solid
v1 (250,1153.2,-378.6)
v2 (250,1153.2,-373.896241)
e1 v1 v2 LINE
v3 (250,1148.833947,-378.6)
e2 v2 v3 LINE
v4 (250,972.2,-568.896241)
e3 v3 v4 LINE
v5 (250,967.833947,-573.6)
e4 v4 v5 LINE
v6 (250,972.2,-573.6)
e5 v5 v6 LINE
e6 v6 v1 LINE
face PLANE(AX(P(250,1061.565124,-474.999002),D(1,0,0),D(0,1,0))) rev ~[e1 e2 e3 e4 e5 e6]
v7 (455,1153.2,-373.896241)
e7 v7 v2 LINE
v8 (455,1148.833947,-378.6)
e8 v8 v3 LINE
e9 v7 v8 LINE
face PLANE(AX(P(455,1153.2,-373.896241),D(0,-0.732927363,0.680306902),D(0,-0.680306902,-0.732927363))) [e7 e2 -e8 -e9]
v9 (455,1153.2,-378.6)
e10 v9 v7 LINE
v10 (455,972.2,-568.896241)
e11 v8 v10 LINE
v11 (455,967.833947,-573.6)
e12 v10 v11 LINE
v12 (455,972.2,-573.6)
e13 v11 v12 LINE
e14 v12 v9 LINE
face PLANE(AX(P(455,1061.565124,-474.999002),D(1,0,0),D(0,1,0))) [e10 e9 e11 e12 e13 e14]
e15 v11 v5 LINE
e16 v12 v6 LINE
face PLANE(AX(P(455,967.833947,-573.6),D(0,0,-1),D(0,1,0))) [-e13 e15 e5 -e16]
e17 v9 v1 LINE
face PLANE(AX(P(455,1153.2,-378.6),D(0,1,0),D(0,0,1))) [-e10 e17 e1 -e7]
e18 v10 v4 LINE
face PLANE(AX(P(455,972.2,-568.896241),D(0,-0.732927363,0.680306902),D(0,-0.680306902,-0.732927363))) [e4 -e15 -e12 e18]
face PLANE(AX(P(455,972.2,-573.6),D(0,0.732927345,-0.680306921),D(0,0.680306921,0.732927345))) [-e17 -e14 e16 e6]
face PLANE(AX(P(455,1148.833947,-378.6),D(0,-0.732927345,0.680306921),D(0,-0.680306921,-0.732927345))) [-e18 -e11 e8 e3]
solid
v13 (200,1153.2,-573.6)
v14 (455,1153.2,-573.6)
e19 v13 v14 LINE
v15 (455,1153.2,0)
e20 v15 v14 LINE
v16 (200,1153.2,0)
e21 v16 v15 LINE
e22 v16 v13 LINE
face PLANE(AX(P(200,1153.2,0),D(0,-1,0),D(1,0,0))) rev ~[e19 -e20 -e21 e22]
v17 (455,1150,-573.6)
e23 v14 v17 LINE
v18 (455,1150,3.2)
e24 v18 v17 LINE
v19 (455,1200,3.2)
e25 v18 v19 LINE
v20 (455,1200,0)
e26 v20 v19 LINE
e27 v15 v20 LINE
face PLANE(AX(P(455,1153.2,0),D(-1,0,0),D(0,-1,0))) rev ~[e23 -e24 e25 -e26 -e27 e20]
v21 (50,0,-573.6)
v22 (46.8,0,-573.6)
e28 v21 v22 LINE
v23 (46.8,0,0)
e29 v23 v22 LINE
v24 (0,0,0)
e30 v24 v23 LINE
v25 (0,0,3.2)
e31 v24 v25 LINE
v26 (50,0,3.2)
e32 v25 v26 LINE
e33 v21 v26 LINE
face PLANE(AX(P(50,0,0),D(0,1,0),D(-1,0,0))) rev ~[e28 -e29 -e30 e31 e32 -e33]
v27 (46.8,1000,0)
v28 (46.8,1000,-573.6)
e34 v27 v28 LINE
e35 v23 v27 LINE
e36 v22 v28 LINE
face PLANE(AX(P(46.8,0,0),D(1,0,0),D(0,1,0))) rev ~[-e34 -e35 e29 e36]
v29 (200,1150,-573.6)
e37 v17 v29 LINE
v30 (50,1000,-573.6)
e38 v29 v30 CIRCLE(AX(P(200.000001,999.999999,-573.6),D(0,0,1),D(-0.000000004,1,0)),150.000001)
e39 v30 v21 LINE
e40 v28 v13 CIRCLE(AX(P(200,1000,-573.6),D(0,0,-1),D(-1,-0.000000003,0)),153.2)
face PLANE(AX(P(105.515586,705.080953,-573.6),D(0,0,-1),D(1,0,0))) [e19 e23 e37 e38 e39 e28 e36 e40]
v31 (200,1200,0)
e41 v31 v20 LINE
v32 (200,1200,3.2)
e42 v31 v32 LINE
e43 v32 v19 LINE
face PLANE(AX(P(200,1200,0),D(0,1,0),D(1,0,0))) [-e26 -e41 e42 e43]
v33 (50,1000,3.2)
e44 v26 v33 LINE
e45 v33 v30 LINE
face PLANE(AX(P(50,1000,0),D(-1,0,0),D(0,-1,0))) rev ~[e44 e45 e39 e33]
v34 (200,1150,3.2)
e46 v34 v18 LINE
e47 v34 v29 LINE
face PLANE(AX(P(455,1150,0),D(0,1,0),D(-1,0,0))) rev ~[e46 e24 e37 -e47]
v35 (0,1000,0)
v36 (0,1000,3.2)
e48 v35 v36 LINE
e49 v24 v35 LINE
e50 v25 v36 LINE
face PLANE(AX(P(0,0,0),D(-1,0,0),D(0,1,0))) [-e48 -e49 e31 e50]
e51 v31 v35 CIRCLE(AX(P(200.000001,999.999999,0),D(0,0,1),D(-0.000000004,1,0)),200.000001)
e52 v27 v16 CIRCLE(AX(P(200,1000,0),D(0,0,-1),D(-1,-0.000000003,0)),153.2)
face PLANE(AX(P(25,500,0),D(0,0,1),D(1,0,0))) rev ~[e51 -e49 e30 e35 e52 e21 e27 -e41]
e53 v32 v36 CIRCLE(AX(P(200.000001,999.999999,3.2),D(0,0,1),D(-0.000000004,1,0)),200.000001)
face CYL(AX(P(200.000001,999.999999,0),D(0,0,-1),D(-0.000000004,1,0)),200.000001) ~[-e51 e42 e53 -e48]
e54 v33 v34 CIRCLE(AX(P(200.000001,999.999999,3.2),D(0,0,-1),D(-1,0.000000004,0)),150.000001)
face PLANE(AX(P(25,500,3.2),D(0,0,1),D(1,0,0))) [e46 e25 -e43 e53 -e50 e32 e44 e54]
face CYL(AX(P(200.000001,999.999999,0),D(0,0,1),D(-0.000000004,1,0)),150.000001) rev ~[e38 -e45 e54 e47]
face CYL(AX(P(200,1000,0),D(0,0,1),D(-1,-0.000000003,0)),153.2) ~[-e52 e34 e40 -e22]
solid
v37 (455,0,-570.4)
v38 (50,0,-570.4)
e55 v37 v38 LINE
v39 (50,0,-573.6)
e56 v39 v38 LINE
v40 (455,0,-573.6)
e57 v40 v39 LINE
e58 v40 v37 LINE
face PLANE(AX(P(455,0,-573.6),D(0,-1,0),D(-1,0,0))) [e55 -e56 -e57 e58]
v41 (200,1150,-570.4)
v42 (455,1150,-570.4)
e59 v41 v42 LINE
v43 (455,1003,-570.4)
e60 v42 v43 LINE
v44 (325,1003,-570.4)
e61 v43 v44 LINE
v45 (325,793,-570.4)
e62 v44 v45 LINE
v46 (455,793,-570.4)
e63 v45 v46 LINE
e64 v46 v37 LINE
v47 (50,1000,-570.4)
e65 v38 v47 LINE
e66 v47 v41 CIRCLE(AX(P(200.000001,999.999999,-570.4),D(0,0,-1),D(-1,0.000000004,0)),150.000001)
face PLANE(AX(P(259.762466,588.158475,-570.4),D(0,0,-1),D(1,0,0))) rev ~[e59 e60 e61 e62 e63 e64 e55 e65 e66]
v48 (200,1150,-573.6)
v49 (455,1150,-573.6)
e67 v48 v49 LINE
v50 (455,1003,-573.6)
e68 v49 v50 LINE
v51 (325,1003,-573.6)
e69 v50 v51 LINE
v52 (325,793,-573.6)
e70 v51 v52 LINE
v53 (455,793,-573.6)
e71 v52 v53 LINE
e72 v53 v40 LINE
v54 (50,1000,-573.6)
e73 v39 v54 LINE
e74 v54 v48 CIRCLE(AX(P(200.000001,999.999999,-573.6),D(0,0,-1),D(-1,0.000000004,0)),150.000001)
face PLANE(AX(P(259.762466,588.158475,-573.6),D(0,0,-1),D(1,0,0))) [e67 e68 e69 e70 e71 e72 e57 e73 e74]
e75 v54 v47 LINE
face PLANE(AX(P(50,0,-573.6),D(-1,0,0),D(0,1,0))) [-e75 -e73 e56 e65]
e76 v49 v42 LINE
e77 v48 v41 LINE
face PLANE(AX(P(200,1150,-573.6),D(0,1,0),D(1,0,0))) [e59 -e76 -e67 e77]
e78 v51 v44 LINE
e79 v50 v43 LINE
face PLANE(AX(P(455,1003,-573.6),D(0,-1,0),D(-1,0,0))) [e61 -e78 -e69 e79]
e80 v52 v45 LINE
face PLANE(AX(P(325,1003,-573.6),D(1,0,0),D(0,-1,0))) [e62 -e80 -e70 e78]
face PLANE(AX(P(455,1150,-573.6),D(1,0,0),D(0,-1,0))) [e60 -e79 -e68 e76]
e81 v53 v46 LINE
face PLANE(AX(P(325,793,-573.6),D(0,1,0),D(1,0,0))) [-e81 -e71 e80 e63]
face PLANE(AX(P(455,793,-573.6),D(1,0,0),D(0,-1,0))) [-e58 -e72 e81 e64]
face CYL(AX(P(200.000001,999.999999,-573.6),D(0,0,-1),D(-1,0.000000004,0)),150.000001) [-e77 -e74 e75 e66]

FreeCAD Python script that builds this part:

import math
import FreeCAD as App
import Part
import Sketcher

V = App.Vector
Q = App.Units.Quantity


def add_polygon(sketch, points):
    """Adds a closed chain of lines whose ends are joined by coincident constraints."""
    first, n = sketch.GeometryCount, len(points)
    for a, b in zip(points, points[1:] + points[:1]):
        sketch.addGeometry(Part.LineSegment(App.Vector(*a, 0), App.Vector(*b, 0)), False)
    for i in range(n):
        sketch.addConstraint(Sketcher.Constraint("Coincident", first + i, 2, first + (i + 1) % n, 1))

doc = App.newDocument("Part")
body = doc.addObject("PartDesign::Body", "Body")

# Sketch on XY plane
sketch1 = body.newObject("Sketcher::SketchObject", "Sketch")
sketch1.AttachmentSupport = (doc.getObject("XY_Plane"), [""])
sketch1.MapMode = "FlatFace"
sketch1.addGeometry([
    Part.LineSegment(V(0, 1000, 0), V(0, 0, 0)),  # 0
    Part.LineSegment(V(0, 0, 0), V(50, 0, 0)),  # 1
    Part.LineSegment(V(50, 0, 0), V(50, 1000, 0)),  # 2
    Part.ArcOfCircle(Part.Circle(V(200, 1000, 0), V(0, 0, 1), 150), math.radians(90), math.radians(180)),  # 3
    Part.LineSegment(V(200, 1150, 0), V(455, 1150, 0)),  # 4
    Part.LineSegment(V(455, 1150, 0), V(455, 1200, 0)),  # 5
    Part.LineSegment(V(455, 1200, 0), V(200, 1200, 0)),  # 6
    Part.ArcOfCircle(Part.Circle(V(200, 1000, 0), V(0, 0, 1), 200), math.radians(90), math.radians(180)),  # 7
], False)
sketch1.addConstraint([
    Sketcher.Constraint("Coincident", 0, 2, 1, 1),
    Sketcher.Constraint("Coincident", 1, 2, 2, 1),
    Sketcher.Constraint("Tangent", 2, 2, 3, 2),
    Sketcher.Constraint("Tangent", 3, 1, 4, 1),
    Sketcher.Constraint("Coincident", 4, 2, 5, 1),
    Sketcher.Constraint("Coincident", 5, 2, 6, 1),
    Sketcher.Constraint("Tangent", 6, 2, 7, 1),
    Sketcher.Constraint("Tangent", 7, 2, 0, 1),
    Sketcher.Constraint("Vertical", 0),
    Sketcher.Constraint("Horizontal", 1),
    Sketcher.Constraint("Vertical", 2),
    Sketcher.Constraint("Horizontal", 4),
    Sketcher.Constraint("Vertical", 5),
    Sketcher.Constraint("Horizontal", 6),
    Sketcher.Constraint("Coincident", 0, 2, -1, 1),
    Sketcher.Constraint("Coincident", 7, 3, 3, 3),
    Sketcher.Constraint("Radius", 3, Q("150.000001 mm")),
    Sketcher.Constraint("Radius", 7, Q("200.000001 mm")),
    Sketcher.Constraint("DistanceX", 4, 1, 4, 2, Q("255 mm")),
    Sketcher.Constraint("DistanceY", 0, 2, 0, 1, Q("1000 mm")),
])
pad1 = body.newObject("PartDesign::Pad", "Pad")
pad1.Profile = sketch1
pad1.Length = 3.2

# Sketch on XY plane
sketch2 = body.newObject("Sketcher::SketchObject", "Sketch001")
sketch2.AttachmentSupport = (doc.getObject("XY_Plane"), [""])
sketch2.MapMode = "FlatFace"
sketch2.addGeometry([
    Part.ArcOfCircle(Part.Circle(V(200, 1000, 0), V(0, 0, 1), 153.2), math.radians(90), math.radians(180)),  # 0
    Part.LineSegment(V(200, 1153.2, 0), V(455, 1153.2, 0)),  # 1
    Part.LineSegment(V(455, 1153.2, 0), V(455, 1150, 0)),  # 2
    Part.LineSegment(V(455, 1150, 0), V(200, 1150, 0)),  # 3
    Part.ArcOfCircle(Part.Circle(V(200, 1000, 0), V(0, 0, 1), 150), math.radians(90), math.radians(180)),  # 4
    Part.LineSegment(V(50, 1000, 0), V(50, 0, 0)),  # 5
    Part.LineSegment(V(50, 0, 0), V(46.8, 0, 0)),  # 6
    Part.LineSegment(V(46.8, 0, 0), V(46.8, 1000, 0)),  # 7
], False)
sketch2.addConstraint([
    Sketcher.Constraint("Tangent", 0, 1, 1, 1),
    Sketcher.Constraint("Coincident", 1, 2, 2, 1),
    Sketcher.Constraint("Coincident", 2, 2, 3, 1),
    Sketcher.Constraint("Tangent", 3, 2, 4, 1),
    Sketcher.Constraint("Tangent", 4, 2, 5, 1),
    Sketcher.Constraint("Coincident", 5, 2, 6, 1),
    Sketcher.Constraint("Coincident", 6, 2, 7, 1),
    Sketcher.Constraint("Tangent", 7, 2, 0, 2),
    Sketcher.Constraint("Horizontal", 1),
    Sketcher.Constraint("Vertical", 2),
    Sketcher.Constraint("Horizontal", 3),
    Sketcher.Constraint("Vertical", 5),
    Sketcher.Constraint("Horizontal", 6),
    Sketcher.Constraint("Vertical", 7),
    Sketcher.Constraint("Coincident", 4, 3, 0, 3),
    Sketcher.Constraint("PointOnObject", 5, 2, -1),
    Sketcher.Constraint("Radius", 4, Q("150.000001 mm")),
    Sketcher.Constraint("Radius", 0, Q("153.2 mm")),
    Sketcher.Constraint("DistanceX", 1, 1, 1, 2, Q("255 mm")),
    Sketcher.Constraint("DistanceY", 5, 2, 5, 1, Q("1000 mm")),
    Sketcher.Constraint("DistanceX", -1, 1, 0, 3, Q("200 mm")),
])
pad2 = body.newObject("PartDesign::Pad", "Pad001")
pad2.Profile = sketch2
pad2.Length = 573.6
pad2.Reversed = True
body2 = doc.addObject("PartDesign::Body", "Body001")

# Sketch on XY plane
sketch3 = body2.newObject("Sketcher::SketchObject", "Sketch002")
sketch3.AttachmentSupport = (doc.getObject("XY_Plane001"), [""])
sketch3.MapMode = "FlatFace"
sketch3.AttachmentOffset = App.Placement(V(0, 0, -573.6), App.Rotation())
sketch3.addGeometry([
    Part.LineSegment(V(200, 1150, 0), V(455, 1150, 0)),  # 0
    Part.LineSegment(V(455, 1150, 0), V(455, 1003, 0)),  # 1
    Part.LineSegment(V(455, 1003, 0), V(325, 1003, 0)),  # 2
    Part.LineSegment(V(325, 1003, 0), V(325, 793, 0)),  # 3
    Part.LineSegment(V(325, 793, 0), V(455, 793, 0)),  # 4
    Part.LineSegment(V(455, 793, 0), V(455, 0, 0)),  # 5
    Part.LineSegment(V(455, 0, 0), V(50, 0, 0)),  # 6
    Part.LineSegment(V(50, 0, 0), V(50, 1000, 0)),  # 7
    Part.ArcOfCircle(Part.Circle(V(200, 1000, 0), V(0, 0, 1), 150), math.radians(90), math.radians(180)),  # 8
], False)
sketch3.addConstraint([
    Sketcher.Constraint("Coincident", 0, 2, 1, 1),
    Sketcher.Constraint("Coincident", 1, 2, 2, 1),
    Sketcher.Constraint("Coincident", 2, 2, 3, 1),
    Sketcher.Constraint("Coincident", 3, 2, 4, 1),
    Sketcher.Constraint("Coincident", 4, 2, 5, 1),
    Sketcher.Constraint("Coincident", 5, 2, 6, 1),
    Sketcher.Constraint("Coincident", 6, 2, 7, 1),
    Sketcher.Constraint("Tangent", 7, 2, 8, 2),
    Sketcher.Constraint("Tangent", 8, 1, 0, 1),
    Sketcher.Constraint("Horizontal", 0),
    Sketcher.Constraint("Vertical", 1),
    Sketcher.Constraint("Horizontal", 2),
    Sketcher.Constraint("Vertical", 3),
    Sketcher.Constraint("Horizontal", 4),
    Sketcher.Constraint("Vertical", 5),
    Sketcher.Constraint("Horizontal", 6),
    Sketcher.Constraint("Vertical", 7),
    Sketcher.Constraint("PointOnObject", 5, 2, -1),
    Sketcher.Constraint("Vertical", 1, 2, 4, 2),
    Sketcher.Constraint("Radius", 8, Q("150.000001 mm")),
    Sketcher.Constraint("DistanceX", 0, 1, 0, 2, Q("255 mm")),
    Sketcher.Constraint("DistanceX", 2, 2, 2, 1, Q("130 mm")),
    Sketcher.Constraint("DistanceY", 1, 2, 1, 1, Q("147 mm")),
    Sketcher.Constraint("DistanceY", 3, 2, 3, 1, Q("210 mm")),
    Sketcher.Constraint("DistanceY", 5, 2, 5, 1, Q("793 mm")),
    Sketcher.Constraint("DistanceX", -1, 1, 8, 3, Q("200.000001 mm")),
])
pad3 = body2.newObject("PartDesign::Pad", "Pad002")
pad3.Profile = sketch3
pad3.Length = 3.2
body3 = doc.addObject("PartDesign::Body", "Body002")

# Sketch on YZ plane
sketch4 = body3.newObject("Sketcher::SketchObject", "Sketch003")
sketch4.AttachmentSupport = (doc.getObject("YZ_Plane002"), [""])
sketch4.MapMode = "FlatFace"
sketch4.AttachmentOffset = App.Placement(V(0, 0, 455), App.Rotation())
add_polygon(sketch4, [(1148.8, -378.6), (972.2, -568.9), (967.8, -573.6), (972.2, -573.6), (1153.2, -378.6), (1153.2, -373.9)])  # lines 0-5
sketch4.addConstraint([
    Sketcher.Constraint("Horizontal", 2),
    Sketcher.Constraint("Vertical", 4),
    Sketcher.Constraint("Parallel", 0, 1),
    Sketcher.Constraint("Parallel", 1, 3),
    Sketcher.Constraint("Parallel", 3, 5),
    Sketcher.Constraint("Horizontal", 3, 2, 5, 2),
    Sketcher.Constraint("Vertical", 0, 2, 2, 2),
    Sketcher.Constraint("DistanceX", 0, 2, 3, 2, Q("181 mm")),
    Sketcher.Constraint("DistanceY", 2, 2, 3, 2, Q("195 mm")),
    Sketcher.Constraint("DistanceX", -1, 1, 0, 2, Q("972.2 mm")),
    Sketcher.Constraint("DistanceY", 1, 2, -1, 1, Q("573.6 mm")),
    Sketcher.Constraint("DistanceY", 4, 1, 4, 2, Q("4.703759 mm")),
])
pad4 = body3.newObject("PartDesign::Pad", "Pad003")
pad4.Profile = sketch4
pad4.Length = 205
pad4.Reversed = True

doc.recompute()
